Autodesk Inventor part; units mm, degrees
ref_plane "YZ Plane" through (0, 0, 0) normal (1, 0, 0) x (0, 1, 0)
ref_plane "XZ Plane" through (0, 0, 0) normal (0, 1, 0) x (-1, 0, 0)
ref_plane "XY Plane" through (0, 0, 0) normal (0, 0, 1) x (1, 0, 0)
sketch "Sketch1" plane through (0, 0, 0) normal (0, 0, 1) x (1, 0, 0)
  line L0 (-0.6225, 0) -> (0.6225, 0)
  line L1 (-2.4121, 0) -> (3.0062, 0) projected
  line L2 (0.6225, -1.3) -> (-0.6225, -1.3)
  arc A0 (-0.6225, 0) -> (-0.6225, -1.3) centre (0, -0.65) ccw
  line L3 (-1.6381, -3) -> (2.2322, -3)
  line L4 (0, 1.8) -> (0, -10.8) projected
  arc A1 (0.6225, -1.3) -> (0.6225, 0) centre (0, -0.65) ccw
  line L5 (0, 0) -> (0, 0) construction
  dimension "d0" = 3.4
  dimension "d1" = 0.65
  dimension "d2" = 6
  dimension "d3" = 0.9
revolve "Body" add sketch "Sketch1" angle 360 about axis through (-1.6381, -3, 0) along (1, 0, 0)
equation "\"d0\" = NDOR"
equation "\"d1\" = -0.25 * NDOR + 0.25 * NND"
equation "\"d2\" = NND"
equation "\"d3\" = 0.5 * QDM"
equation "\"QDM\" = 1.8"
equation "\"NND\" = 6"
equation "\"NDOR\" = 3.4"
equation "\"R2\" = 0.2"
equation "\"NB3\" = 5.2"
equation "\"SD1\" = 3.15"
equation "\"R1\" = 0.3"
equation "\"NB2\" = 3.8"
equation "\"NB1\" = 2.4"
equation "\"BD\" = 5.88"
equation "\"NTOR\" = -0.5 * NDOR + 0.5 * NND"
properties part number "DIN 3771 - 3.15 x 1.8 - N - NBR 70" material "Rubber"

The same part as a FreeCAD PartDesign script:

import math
import FreeCAD as App
import Part
import Sketcher
Q = App.Units.Quantity

doc = App.newDocument("Part")
params = doc.addObject("Spreadsheet::Sheet", "Params")
for row, (alias, value) in enumerate([
    ("sketch1_radius", "0.9 mm"),
    ("revolution_angle", "360 deg"),
], start=1):
    params.set(f"A{row}", alias)
    params.set(f"B{row}", "=" + value)
    params.setAlias(f"B{row}", alias)

body = doc.addObject("PartDesign::Body", "Body")

sketch1 = doc.addObject("Sketcher::SketchObject", "Sketch")
body.addObject(sketch1)
sketch1.AttachmentSupport = (doc.XY_Plane, [""])
sketch1.MapMode = "FlatFace"
sketch1.addGeometry([
    Part.ArcOfCircle(Part.Circle(App.Vector(0, -0.65, 0), App.Vector(0, 0, 1), 0.900003), math.radians(133.761974), math.radians(226.238026)),
    Part.LineSegment(App.Vector(-0.6225, -1.3, 0), App.Vector(0.6225, -1.3, 0)),
    Part.ArcOfCircle(Part.Circle(App.Vector(0, -0.65, 0), App.Vector(0, 0, 1), 0.900003), math.radians(-46.238026), math.radians(46.238026)),
    Part.LineSegment(App.Vector(0.6225, 0, 0), App.Vector(-0.6225, 0, 0)),
], False)
sketch1.addGeometry(Part.LineSegment(App.Vector(-0.6225, -3, 0), App.Vector(0.6225, -3, 0)), True)
sketch1.addConstraint([
    Sketcher.Constraint("Coincident", 0, 2, 1, 1),
    Sketcher.Constraint("Coincident", 1, 2, 2, 1),
    Sketcher.Constraint("Coincident", 2, 2, 3, 1),
    Sketcher.Constraint("Coincident", 3, 2, 0, 1),
    Sketcher.Constraint("Horizontal", 1),
    Sketcher.Constraint("Horizontal", 3),
    Sketcher.Constraint("Horizontal", 4),
    Sketcher.Constraint("Coincident", 2, 3, 0, 3),
    Sketcher.Constraint("Equal", 0, 2),
    Sketcher.Constraint("Symmetric", 2, 2, 3, 2, -1, 1),
    Sketcher.Constraint("Vertical", 1, 2, 2, 2),
    Sketcher.Constraint("Vertical", 3, 2, 4, 1),
    Sketcher.Constraint("Vertical", 2, 2, 4, 2),
    Sketcher.Constraint("Radius", 0, Q("0.9 mm")),
    Sketcher.Constraint("DistanceY", 0, 3, -1, 1, Q("0.65 mm")),
    Sketcher.Constraint("DistanceY", 4, 1, -1, 1, Q("3 mm")),
])
sketch1.setExpression("Constraints[13]", "Params.sketch1_radius")
revolution = doc.addObject("PartDesign::Revolution", "Revolution")
body.addObject(revolution)
revolution.Profile = sketch1
revolution.ReferenceAxis = (sketch1, ["Axis0"])
revolution.setExpression("Angle", "Params.revolution_angle")

doc.recompute()
